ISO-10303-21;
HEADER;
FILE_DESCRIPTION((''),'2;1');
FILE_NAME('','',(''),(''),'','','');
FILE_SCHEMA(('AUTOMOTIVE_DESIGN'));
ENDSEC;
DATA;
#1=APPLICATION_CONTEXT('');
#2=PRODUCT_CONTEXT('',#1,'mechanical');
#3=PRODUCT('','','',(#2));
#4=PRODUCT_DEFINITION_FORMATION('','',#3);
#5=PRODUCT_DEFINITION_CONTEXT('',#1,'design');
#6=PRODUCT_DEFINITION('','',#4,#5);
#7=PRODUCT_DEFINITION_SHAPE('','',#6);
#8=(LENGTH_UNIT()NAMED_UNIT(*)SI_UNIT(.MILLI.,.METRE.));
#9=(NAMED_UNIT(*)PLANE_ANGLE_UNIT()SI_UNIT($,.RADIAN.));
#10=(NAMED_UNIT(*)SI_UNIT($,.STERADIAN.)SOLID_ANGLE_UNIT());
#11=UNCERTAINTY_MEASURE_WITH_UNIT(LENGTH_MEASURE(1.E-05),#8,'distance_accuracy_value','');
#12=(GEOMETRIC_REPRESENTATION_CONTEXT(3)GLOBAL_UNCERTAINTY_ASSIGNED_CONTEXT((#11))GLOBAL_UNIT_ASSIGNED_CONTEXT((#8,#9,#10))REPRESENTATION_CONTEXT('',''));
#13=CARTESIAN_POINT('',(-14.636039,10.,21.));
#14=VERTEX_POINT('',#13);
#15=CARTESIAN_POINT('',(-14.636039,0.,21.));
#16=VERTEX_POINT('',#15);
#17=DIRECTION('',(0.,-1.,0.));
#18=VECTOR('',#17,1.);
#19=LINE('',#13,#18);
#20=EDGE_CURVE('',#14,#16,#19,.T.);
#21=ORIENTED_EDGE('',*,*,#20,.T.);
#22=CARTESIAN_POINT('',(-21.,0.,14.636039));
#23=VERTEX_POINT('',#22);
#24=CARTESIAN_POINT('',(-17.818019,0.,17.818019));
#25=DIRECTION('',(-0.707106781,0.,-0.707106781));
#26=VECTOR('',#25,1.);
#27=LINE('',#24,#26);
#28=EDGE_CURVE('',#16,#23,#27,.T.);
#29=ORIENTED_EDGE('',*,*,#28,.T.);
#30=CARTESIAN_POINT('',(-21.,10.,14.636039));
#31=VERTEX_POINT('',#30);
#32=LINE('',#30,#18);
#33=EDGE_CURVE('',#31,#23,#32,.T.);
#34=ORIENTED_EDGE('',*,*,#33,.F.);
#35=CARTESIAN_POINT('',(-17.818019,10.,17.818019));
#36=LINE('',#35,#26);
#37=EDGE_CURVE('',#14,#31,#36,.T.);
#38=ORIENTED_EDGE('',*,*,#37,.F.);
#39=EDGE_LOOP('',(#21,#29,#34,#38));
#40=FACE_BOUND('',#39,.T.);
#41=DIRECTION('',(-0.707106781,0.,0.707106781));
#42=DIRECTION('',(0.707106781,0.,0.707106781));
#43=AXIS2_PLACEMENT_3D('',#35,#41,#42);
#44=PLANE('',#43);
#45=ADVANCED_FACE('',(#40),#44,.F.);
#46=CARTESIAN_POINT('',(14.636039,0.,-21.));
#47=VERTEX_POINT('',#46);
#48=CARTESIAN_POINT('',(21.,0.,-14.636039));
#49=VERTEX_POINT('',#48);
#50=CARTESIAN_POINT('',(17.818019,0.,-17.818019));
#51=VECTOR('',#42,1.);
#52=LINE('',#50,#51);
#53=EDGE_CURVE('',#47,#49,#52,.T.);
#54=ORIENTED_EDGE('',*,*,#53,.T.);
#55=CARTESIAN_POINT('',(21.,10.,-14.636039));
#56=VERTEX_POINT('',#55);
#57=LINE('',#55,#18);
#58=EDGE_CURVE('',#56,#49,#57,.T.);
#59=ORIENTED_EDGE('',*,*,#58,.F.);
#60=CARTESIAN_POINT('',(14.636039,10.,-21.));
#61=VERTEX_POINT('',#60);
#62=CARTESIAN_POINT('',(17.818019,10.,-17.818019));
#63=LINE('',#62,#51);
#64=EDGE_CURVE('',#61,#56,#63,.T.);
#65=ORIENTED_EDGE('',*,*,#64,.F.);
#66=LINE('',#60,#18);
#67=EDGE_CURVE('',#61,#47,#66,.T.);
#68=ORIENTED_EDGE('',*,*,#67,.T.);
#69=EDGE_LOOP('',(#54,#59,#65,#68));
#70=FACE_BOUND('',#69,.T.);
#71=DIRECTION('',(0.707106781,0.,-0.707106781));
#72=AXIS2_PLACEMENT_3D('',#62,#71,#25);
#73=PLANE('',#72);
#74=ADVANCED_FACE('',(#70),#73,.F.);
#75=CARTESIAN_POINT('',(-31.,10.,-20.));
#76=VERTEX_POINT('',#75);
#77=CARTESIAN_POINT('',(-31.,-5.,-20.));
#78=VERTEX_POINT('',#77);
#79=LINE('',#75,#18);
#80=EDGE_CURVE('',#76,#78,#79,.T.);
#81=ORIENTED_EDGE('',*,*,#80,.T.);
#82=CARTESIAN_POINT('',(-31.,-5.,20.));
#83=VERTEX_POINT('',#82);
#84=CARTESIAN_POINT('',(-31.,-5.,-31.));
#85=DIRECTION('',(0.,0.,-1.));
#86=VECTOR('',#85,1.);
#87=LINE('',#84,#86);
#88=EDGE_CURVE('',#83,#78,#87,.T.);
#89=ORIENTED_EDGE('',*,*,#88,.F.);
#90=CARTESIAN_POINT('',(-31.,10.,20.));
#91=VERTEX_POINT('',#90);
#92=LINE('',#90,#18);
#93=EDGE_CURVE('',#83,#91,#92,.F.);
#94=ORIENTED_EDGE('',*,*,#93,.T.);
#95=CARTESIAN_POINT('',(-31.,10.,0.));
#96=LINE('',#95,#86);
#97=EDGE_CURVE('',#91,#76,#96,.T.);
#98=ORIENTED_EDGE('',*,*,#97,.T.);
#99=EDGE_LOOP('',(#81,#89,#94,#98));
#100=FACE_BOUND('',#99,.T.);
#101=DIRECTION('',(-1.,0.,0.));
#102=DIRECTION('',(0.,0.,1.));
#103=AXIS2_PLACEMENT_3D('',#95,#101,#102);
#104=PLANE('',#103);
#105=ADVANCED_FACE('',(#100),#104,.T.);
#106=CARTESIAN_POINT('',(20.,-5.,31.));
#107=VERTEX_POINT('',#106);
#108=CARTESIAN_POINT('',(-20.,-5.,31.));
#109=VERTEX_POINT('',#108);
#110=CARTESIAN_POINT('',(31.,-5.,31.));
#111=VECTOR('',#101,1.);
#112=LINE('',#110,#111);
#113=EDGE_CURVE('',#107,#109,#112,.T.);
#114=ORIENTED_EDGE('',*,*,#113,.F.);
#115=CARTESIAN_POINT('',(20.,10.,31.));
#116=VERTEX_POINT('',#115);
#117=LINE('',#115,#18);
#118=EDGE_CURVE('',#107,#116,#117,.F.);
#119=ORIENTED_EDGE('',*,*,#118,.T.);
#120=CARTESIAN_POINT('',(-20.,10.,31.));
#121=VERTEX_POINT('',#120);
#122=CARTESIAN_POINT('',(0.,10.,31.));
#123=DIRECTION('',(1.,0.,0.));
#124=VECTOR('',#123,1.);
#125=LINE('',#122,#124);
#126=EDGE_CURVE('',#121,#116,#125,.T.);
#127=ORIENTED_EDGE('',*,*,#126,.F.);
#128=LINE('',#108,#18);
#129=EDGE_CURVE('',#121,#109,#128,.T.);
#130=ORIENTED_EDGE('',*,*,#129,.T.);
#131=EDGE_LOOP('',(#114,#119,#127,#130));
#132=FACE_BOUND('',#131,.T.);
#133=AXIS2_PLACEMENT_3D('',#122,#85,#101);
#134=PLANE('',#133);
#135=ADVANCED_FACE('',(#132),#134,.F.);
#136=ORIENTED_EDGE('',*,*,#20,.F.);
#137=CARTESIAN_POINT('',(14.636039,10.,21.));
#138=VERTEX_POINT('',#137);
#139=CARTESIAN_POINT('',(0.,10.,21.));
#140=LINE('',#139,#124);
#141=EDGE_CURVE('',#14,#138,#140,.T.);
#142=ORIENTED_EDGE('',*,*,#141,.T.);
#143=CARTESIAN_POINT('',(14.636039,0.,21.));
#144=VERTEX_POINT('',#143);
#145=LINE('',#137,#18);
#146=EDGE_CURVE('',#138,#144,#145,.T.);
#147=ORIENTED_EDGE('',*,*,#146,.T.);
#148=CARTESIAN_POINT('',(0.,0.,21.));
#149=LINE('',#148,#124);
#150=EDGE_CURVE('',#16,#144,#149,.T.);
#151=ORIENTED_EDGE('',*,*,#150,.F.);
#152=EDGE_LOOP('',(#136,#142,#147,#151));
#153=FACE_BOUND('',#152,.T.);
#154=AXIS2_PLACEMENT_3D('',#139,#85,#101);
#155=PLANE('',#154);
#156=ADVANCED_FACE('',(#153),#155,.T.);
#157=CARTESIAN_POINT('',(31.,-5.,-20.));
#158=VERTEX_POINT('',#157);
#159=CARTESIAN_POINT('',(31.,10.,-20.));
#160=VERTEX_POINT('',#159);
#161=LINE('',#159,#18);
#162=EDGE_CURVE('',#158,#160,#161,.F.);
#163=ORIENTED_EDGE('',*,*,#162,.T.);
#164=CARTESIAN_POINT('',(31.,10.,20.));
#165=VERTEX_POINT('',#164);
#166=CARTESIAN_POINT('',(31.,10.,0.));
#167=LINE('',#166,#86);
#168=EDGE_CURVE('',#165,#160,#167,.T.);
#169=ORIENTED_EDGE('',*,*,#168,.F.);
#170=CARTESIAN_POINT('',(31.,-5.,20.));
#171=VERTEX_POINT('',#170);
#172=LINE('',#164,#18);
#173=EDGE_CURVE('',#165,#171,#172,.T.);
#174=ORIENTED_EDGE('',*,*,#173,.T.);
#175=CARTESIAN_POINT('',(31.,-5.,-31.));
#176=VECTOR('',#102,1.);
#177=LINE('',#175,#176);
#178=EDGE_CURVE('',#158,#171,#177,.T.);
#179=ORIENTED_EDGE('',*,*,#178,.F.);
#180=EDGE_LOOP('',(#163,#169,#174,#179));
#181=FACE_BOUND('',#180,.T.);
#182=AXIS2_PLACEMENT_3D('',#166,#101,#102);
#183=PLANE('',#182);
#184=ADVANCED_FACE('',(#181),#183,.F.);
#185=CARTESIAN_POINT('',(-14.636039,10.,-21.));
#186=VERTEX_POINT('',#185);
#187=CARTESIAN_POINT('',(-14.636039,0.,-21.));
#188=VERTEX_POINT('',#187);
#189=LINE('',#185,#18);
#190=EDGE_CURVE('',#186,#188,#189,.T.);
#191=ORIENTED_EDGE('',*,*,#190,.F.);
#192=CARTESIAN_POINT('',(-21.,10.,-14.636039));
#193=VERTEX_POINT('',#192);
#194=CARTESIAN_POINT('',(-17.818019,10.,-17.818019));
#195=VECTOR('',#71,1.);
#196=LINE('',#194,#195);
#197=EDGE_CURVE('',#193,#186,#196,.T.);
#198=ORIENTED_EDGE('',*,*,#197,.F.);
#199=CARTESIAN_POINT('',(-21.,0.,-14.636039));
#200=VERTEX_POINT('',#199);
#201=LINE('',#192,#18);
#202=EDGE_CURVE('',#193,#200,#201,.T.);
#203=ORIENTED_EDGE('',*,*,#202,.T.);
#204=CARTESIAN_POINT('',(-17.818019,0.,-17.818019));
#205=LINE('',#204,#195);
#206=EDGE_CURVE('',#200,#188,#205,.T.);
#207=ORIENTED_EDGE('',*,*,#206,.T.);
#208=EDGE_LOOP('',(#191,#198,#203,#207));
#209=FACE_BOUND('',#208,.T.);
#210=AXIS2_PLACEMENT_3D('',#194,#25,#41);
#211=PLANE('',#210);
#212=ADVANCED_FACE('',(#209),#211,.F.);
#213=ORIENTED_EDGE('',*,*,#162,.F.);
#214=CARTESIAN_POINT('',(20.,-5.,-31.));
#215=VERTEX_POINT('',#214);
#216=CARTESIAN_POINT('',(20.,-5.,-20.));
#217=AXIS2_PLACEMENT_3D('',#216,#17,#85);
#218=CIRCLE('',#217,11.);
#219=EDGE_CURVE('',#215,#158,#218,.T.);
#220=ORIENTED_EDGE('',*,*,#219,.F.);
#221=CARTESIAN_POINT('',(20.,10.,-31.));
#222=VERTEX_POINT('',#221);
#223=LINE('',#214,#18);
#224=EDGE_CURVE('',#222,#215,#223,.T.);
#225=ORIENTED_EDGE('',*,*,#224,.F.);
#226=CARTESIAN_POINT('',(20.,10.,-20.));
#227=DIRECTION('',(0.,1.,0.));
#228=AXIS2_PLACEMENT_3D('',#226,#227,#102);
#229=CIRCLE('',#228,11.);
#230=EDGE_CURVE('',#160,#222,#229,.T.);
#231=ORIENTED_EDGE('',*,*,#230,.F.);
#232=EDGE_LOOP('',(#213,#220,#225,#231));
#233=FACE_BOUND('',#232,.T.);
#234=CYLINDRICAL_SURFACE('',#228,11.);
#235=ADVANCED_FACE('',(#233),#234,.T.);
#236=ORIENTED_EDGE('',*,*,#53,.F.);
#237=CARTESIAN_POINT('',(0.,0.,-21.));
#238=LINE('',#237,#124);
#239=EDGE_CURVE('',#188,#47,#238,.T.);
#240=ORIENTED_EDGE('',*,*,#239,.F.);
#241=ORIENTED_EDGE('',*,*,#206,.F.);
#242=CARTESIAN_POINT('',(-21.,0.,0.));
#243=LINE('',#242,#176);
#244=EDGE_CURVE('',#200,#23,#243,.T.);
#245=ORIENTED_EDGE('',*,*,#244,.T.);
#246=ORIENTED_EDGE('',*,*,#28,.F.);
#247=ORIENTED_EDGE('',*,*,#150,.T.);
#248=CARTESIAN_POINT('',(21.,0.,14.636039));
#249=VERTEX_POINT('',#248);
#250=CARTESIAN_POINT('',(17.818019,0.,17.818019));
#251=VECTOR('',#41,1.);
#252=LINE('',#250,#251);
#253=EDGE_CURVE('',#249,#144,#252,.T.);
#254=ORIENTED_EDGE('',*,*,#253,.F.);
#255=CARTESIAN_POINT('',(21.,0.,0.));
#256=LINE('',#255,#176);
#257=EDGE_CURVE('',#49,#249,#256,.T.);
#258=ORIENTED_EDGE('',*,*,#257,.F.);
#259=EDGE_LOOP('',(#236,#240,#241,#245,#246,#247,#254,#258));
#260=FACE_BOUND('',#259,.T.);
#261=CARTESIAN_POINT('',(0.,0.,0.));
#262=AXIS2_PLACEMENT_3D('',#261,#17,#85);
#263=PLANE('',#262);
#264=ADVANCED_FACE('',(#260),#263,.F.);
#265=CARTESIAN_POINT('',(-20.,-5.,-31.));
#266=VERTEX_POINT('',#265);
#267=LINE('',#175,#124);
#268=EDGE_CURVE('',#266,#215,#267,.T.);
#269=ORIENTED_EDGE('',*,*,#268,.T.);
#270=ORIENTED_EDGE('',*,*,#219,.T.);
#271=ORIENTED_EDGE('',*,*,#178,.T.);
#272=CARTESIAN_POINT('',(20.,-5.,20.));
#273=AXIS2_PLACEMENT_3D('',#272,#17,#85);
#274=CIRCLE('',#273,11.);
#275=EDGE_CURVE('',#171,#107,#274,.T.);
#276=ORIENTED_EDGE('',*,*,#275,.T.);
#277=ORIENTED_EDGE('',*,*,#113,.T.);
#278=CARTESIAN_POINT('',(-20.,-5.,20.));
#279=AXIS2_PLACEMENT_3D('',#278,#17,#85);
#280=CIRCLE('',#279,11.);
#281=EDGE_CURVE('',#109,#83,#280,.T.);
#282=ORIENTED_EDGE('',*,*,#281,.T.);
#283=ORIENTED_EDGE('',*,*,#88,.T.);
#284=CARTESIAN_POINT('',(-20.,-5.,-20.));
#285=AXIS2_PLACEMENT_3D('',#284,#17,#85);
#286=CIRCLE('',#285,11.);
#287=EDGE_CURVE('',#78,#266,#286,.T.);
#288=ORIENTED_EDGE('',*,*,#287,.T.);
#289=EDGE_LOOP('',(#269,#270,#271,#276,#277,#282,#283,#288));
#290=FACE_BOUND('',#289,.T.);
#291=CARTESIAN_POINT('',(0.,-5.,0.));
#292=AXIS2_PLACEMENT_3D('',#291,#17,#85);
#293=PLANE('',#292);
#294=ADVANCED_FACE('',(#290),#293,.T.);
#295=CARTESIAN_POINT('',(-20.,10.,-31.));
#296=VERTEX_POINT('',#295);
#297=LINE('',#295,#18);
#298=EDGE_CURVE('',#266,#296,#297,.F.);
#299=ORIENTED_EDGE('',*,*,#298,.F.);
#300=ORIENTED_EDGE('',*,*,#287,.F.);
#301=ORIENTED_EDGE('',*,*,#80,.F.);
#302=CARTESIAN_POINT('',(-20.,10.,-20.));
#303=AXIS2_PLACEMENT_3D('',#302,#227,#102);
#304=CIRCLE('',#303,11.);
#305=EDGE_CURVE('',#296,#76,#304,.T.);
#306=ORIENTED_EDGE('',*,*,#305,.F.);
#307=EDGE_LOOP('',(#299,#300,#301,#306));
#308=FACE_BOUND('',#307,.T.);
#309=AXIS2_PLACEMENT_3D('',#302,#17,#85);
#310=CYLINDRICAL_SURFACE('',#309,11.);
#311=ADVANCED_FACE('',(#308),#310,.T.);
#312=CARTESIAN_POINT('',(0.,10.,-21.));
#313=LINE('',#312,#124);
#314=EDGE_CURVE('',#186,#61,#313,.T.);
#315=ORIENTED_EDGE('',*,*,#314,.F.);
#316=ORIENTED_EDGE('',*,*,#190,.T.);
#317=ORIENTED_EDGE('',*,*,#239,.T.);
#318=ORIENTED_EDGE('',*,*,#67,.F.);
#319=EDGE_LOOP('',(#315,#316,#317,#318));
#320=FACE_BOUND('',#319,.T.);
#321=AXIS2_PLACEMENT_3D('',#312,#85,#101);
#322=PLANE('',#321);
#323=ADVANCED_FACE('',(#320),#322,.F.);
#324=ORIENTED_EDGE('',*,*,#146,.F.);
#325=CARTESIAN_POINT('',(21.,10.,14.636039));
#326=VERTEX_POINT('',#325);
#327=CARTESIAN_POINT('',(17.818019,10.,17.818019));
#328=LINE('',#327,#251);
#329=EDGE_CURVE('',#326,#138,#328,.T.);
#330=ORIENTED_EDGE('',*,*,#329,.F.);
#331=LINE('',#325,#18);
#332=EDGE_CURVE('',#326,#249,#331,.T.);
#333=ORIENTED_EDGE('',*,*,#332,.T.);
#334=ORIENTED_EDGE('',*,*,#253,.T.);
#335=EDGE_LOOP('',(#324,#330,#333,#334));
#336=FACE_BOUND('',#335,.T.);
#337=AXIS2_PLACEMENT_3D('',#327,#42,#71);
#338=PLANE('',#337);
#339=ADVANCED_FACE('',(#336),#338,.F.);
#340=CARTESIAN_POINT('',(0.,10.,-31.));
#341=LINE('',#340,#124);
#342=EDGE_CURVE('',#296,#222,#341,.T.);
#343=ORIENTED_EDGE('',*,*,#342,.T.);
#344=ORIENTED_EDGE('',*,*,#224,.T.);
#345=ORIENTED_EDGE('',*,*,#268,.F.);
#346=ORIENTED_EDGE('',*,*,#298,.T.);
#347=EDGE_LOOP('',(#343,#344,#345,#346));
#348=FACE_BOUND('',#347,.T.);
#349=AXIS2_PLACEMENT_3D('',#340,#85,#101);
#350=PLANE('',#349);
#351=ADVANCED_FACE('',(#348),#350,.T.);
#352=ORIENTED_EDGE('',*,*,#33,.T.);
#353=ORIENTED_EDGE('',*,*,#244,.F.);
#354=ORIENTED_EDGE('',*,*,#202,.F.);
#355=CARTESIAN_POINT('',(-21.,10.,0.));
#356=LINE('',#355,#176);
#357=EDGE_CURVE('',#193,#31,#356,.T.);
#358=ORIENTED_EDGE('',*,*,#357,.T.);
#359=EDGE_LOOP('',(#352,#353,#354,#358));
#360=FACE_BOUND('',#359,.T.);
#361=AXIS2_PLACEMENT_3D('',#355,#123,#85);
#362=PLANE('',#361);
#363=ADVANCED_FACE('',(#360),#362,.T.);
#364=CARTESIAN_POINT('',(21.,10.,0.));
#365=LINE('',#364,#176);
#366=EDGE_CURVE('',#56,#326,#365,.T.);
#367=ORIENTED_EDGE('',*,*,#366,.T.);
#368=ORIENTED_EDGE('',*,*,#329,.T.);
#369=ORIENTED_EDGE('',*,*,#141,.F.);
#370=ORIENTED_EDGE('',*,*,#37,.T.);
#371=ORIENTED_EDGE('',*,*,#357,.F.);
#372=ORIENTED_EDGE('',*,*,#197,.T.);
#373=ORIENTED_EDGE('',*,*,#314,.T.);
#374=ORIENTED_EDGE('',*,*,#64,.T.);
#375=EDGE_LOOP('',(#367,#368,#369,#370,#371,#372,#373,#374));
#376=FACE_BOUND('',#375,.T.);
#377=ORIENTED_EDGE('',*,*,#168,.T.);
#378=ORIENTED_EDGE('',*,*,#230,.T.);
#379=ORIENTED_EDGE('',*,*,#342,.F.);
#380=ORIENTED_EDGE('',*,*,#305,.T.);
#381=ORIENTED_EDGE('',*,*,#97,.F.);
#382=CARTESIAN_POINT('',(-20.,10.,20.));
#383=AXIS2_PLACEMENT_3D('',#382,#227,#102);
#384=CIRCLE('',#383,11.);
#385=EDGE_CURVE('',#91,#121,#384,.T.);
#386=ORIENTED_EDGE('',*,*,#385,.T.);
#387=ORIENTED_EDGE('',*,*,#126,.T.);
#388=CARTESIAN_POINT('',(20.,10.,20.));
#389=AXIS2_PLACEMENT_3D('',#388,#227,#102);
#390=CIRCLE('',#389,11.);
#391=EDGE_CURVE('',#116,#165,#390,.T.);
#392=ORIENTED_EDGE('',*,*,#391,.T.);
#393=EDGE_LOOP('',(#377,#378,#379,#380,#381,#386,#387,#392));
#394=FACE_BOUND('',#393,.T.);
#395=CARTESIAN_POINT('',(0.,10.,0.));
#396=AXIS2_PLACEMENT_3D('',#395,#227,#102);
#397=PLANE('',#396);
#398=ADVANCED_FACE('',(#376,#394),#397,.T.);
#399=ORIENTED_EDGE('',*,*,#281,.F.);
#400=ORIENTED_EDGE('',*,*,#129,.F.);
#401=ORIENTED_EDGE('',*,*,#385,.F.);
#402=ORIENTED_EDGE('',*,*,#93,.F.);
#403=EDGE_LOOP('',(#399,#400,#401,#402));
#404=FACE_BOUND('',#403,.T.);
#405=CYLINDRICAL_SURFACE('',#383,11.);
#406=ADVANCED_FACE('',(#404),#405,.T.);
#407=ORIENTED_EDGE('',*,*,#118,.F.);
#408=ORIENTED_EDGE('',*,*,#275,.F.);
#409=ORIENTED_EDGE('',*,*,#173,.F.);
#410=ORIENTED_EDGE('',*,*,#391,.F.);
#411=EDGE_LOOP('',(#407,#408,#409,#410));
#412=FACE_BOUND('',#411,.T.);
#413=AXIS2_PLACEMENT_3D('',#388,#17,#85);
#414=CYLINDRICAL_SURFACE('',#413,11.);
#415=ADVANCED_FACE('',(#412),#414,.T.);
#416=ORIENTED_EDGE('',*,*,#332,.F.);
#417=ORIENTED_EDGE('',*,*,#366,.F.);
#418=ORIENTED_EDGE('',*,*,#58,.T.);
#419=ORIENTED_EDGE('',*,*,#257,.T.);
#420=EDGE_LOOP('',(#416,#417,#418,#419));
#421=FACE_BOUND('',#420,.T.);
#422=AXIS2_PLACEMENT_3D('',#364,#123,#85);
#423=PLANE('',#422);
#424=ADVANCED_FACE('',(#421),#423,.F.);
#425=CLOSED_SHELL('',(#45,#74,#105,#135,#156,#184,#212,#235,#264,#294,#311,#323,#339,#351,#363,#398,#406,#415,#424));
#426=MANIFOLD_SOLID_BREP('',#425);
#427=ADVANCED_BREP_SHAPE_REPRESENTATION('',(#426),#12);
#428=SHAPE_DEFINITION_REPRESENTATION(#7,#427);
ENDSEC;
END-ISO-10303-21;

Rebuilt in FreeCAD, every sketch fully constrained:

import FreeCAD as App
import Part
import Sketcher
Q = App.Units.Quantity


def edges_at(feature, points):
    """Names of the edges that pass closest to the given points."""
    edges = feature.Shape.Edges
    near = lambda p: min(range(len(edges)), key=lambda i: edges[i].distToShape(Part.Vertex(*p))[0])
    return sorted({f"Edge{near(p) + 1}" for p in points})


def add_polygon(sketch, points):
    """Adds a closed chain of lines whose ends are joined by coincident constraints."""
    first, n = sketch.GeometryCount, len(points)
    for a, b in zip(points, points[1:] + points[:1]):
        sketch.addGeometry(Part.LineSegment(App.Vector(*a, 0), App.Vector(*b, 0)), False)
    for i in range(n):
        sketch.addConstraint(Sketcher.Constraint("Coincident", first + i, 2, first + (i + 1) % n, 1))

doc = App.newDocument("Part")
params = doc.addObject("Spreadsheet::Sheet", "Params")
for row, (alias, value) in enumerate([
    ("sketch1_width", "62 mm"),
    ("sketch1_length", "9 mm"),
    ("pad1_length", "10 mm"),
    ("sketch2_width", "62 mm"),
    ("pad2_length", "5 mm"),
    ("fillet_radius", "11 mm"),
], start=1):
    params.set(f"A{row}", alias)
    params.set(f"B{row}", "=" + value)
    params.setAlias(f"B{row}", alias)

body = doc.addObject("PartDesign::Body", "Body")

# Sketch on XZ plane
sketch1 = body.newObject("Sketcher::SketchObject", "Sketch")
sketch1.AttachmentSupport = (doc.getObject("XZ_Plane"), [""])
sketch1.MapMode = "FlatFace"
add_polygon(sketch1, [(-31, -31), (-31, 31), (31, 31), (31, -31)])  # lines 0-3
add_polygon(sketch1, [(15, 21), (-15, 21), (-21, 15), (-21, -15), (-15, -21), (15, -21), (21, -15), (21, 15)])  # lines 4-11
sketch1.addConstraint(Sketcher.Constraint("Vertical", 0))
sketch1.addConstraint(Sketcher.Constraint("Horizontal", 1))
sketch1.addConstraint(Sketcher.Constraint("Vertical", 2))
sketch1.addConstraint(Sketcher.Constraint("Horizontal", 3))
sketch1.addConstraint(Sketcher.Constraint("Horizontal", 4))
sketch1.addConstraint(Sketcher.Constraint("Vertical", 6))
sketch1.addConstraint(Sketcher.Constraint("Horizontal", 8))
sketch1.addConstraint(Sketcher.Constraint("Vertical", 10))
sketch1.addConstraint(Sketcher.Constraint("Symmetric", 0, 2, 2, 2, -1, 1))
sketch1.addConstraint(Sketcher.Constraint("Symmetric", 4, 2, 8, 2, -1, 1))
sketch1.addConstraint(Sketcher.Constraint("Symmetric", 5, 2, 9, 2, -1, 1))
sketch1.addConstraint(Sketcher.Constraint("Perpendicular", 5, 7))
sketch1.addConstraint(Sketcher.Constraint("Perpendicular", 9, 11))
sketch1.addConstraint(Sketcher.Constraint("Horizontal", 6, 2, 9, 2))
sketch1.addConstraint(Sketcher.Constraint("Horizontal", 5, 2, 10, 2))
sketch1.addConstraint(Sketcher.Constraint("Vertical", 4, 2, 7, 2))
sketch1.addConstraint(Sketcher.Constraint("Equal", 3, 0))
sketch1.addConstraint(Sketcher.Constraint("Equal", 8, 6))
sketch1.addConstraint(Sketcher.Constraint("DistanceX", 1, 1, 1, 2, Q("62 mm")))
sketch1.addConstraint(Sketcher.Constraint("Distance", 5, Q("9 mm")))
sketch1.addConstraint(Sketcher.Constraint("DistanceY", -1, 1, 4, 2, Q("21 mm")))
sketch1.setExpression("Constraints[30]", "Params.sketch1_width")
sketch1.setExpression("Constraints[31]", "Params.sketch1_length")
pad1 = body.newObject("PartDesign::Pad", "Pad")
pad1.Profile = sketch1
pad1.setExpression("Length", "Params.pad1_length")
pad1.Reversed = True

# Sketch on XZ plane
sketch2 = body.newObject("Sketcher::SketchObject", "Sketch001")
sketch2.AttachmentSupport = (doc.getObject("XZ_Plane"), [""])
sketch2.MapMode = "FlatFace"
add_polygon(sketch2, [(31, -31), (31, 31), (-31, 31), (-31, -31)])  # lines 0-3
sketch2.addConstraint(Sketcher.Constraint("Vertical", 0))
sketch2.addConstraint(Sketcher.Constraint("Horizontal", 1))
sketch2.addConstraint(Sketcher.Constraint("Vertical", 2))
sketch2.addConstraint(Sketcher.Constraint("Horizontal", 3))
sketch2.addConstraint(Sketcher.Constraint("Symmetric", 0, 2, 2, 2, -1, 1))
sketch2.addConstraint(Sketcher.Constraint("Equal", 3, 0))
sketch2.addConstraint(Sketcher.Constraint("DistanceX", 1, 2, 1, 1, Q("62 mm")))
sketch2.setExpression("Constraints[10]", "Params.sketch2_width")
pad2 = body.newObject("PartDesign::Pad", "Pad001")
pad2.Profile = sketch2
pad2.setExpression("Length", "Params.pad2_length")
doc.recompute()

fillet = body.newObject("PartDesign::Fillet", "Fillet")
fillet.Base = (pad2, edges_at(pad2, [
    (-31, 2.5, 31),
    (-31, 2.5, -31),
    (31, 2.5, -31),
    (31, 2.5, 31),
]))
fillet.setExpression("Radius", "Params.fillet_radius")

doc.recompute()
